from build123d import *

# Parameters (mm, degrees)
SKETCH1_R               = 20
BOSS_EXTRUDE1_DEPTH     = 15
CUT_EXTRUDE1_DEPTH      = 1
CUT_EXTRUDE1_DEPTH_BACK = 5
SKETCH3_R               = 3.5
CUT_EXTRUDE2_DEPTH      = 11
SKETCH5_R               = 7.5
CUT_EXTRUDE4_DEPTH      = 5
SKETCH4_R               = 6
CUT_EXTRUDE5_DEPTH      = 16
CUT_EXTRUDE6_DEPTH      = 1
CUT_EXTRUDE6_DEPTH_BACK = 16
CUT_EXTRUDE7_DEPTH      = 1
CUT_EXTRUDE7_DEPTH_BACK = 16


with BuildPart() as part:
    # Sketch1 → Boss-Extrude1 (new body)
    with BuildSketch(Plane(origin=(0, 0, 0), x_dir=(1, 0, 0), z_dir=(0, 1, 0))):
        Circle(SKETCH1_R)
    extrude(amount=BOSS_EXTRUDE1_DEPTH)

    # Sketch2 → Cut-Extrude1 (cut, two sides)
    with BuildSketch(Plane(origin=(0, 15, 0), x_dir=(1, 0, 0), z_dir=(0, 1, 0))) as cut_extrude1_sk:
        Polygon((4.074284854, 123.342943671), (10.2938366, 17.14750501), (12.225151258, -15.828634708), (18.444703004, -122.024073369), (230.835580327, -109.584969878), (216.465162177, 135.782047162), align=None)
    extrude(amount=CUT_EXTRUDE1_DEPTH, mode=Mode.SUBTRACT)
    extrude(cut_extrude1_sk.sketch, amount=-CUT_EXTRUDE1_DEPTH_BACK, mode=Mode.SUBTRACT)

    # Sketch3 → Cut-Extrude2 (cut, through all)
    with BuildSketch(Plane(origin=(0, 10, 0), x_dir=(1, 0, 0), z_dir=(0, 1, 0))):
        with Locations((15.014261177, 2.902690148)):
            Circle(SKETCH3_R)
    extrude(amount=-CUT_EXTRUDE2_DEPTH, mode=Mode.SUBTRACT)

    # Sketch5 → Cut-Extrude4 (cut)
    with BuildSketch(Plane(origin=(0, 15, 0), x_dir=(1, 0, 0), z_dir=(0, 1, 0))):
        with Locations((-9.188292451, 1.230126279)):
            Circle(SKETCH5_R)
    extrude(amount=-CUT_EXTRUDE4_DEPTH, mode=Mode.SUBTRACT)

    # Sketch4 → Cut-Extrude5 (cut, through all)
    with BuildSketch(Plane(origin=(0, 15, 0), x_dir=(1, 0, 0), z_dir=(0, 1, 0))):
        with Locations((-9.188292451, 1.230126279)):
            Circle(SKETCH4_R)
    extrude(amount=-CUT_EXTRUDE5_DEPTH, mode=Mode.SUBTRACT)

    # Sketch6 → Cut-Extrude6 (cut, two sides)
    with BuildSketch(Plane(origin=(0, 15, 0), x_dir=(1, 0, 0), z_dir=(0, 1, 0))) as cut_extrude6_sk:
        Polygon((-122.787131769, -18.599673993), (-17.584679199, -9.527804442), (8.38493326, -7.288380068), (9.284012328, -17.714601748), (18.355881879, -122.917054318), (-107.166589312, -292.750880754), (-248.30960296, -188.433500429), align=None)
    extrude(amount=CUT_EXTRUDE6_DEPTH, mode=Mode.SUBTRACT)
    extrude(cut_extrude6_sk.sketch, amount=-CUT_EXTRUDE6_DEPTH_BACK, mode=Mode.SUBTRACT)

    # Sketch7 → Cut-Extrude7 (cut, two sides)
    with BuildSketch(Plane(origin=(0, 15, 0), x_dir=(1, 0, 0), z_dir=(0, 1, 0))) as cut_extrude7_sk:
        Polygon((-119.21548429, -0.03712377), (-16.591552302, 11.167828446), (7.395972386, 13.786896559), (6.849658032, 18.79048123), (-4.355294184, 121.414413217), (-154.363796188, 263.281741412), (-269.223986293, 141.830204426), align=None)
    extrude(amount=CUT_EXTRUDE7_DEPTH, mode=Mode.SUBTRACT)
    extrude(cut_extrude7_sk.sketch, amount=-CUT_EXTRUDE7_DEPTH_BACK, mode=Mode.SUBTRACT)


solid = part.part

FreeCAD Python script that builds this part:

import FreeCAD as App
import Part
import Sketcher

V = App.Vector
Q = App.Units.Quantity


def add_polygon(sketch, points):
    """Adds a closed chain of lines whose ends are joined by coincident constraints."""
    first, n = sketch.GeometryCount, len(points)
    for a, b in zip(points, points[1:] + points[:1]):
        sketch.addGeometry(Part.LineSegment(App.Vector(*a, 0), App.Vector(*b, 0)), False)
    for i in range(n):
        sketch.addConstraint(Sketcher.Constraint("Coincident", first + i, 2, first + (i + 1) % n, 1))

doc = App.newDocument("Part")
body = doc.addObject("PartDesign::Body", "Body")

sketch1 = body.newObject("Sketcher::SketchObject", "Sketch")
sketch1.AttachmentSupport = (doc.getObject("XZ_Plane"), [""])
sketch1.MapMode = "FlatFace"
sketch1.addGeometry(Part.Circle(V(0, 0, 0), V(0, 0, 1), 20), False)
sketch1.addConstraint([
    Sketcher.Constraint("Coincident", 0, 3, -1, 1),
    Sketcher.Constraint("Diameter", 0, Q("40 mm")),
])
pad1 = body.newObject("PartDesign::Pad", "Pad")
pad1.Profile = sketch1
pad1.Length = 15
pad1.Reversed = True

sketch2 = body.newObject("Sketcher::SketchObject", "Sketch001")
sketch2.AttachmentSupport = (doc.getObject("XZ_Plane"), [""])
sketch2.MapMode = "FlatFace"
sketch2.AttachmentOffset = App.Placement(V(0, 0, -15), App.Rotation())
add_polygon(sketch2, [(4, -123), (10, -17), (12, 16), (18, 122), (231, 110), (216, -136)])
sketch2.addConstraint([
    Sketcher.Constraint("Parallel", 0, 1),
    Sketcher.Constraint("Parallel", 1, 2),
    Sketcher.Constraint("Perpendicular", 2, 3),
    Sketcher.Constraint("Perpendicular", 3, 4),
    Sketcher.Constraint("Perpendicular", 4, 5),
    Sketcher.Constraint("Equal", 0, 2),
    Sketcher.Constraint("DistanceX", -1, 1, 1, 2, Q("12.225151 mm")),
    Sketcher.Constraint("DistanceX", -1, 1, 3, 2, Q("230.83558 mm")),
    Sketcher.Constraint("DistanceY", -1, 1, 3, 2, Q("109.58497 mm")),
    Sketcher.Constraint("DistanceY", 0, 2, 1, 2, Q("32.97614 mm")),
    Sketcher.Constraint("DistanceX", 1, 2, 2, 2, Q("6.219552 mm")),
    Sketcher.Constraint("DistanceY", 1, 2, 2, 2, Q("106.195439 mm")),
])
pocket1 = body.newObject("PartDesign::Pocket", "Pocket")
pocket1.Profile = sketch2
pocket1.Type = "TwoLengths"
pocket1.Length = 1
pocket1.Length2 = 5

sketch3 = body.newObject("Sketcher::SketchObject", "Sketch002")
sketch3.AttachmentSupport = (doc.getObject("XZ_Plane"), [""])
sketch3.MapMode = "FlatFace"
sketch3.AttachmentOffset = App.Placement(V(0, 0, -10), App.Rotation())
sketch3.addGeometry(Part.Circle(V(15, -2.9, 0), V(0, 0, 1), 3.5), False)
sketch3.addConstraint([
    Sketcher.Constraint("Diameter", 0, Q("7 mm")),
    Sketcher.Constraint("DistanceX", -1, 1, 0, 3, Q("15.014261 mm")),
    Sketcher.Constraint("DistanceY", 0, 3, -1, 1, Q("2.90269 mm")),
])
pocket2 = body.newObject("PartDesign::Pocket", "Pocket001")
pocket2.Profile = sketch3
pocket2.Type = "ThroughAll"
pocket2.Reversed = True

sketch4 = body.newObject("Sketcher::SketchObject", "Sketch003")
sketch4.AttachmentSupport = (doc.getObject("XZ_Plane"), [""])
sketch4.MapMode = "FlatFace"
sketch4.AttachmentOffset = App.Placement(V(0, 0, -15), App.Rotation())
sketch4.addGeometry(Part.Circle(V(-9, -1, 0), V(0, 0, 1), 8), False)
sketch4.addConstraint([
    Sketcher.Constraint("Diameter", 0, Q("15 mm")),
    Sketcher.Constraint("DistanceX", 0, 3, -1, 1, Q("9.188292 mm")),
    Sketcher.Constraint("DistanceY", 0, 3, -1, 1, Q("1.230126 mm")),
])
pocket3 = body.newObject("PartDesign::Pocket", "Pocket002")
pocket3.Profile = sketch4
pocket3.Length = 5
pocket3.Reversed = True

sketch5 = body.newObject("Sketcher::SketchObject", "Sketch004")
sketch5.AttachmentSupport = (doc.getObject("XZ_Plane"), [""])
sketch5.MapMode = "FlatFace"
sketch5.AttachmentOffset = App.Placement(V(0, 0, -15), App.Rotation())
sketch5.addGeometry(Part.Circle(V(-9, -1, 0), V(0, 0, 1), 6), False)
sketch5.addConstraint([
    Sketcher.Constraint("Diameter", 0, Q("12 mm")),
    Sketcher.Constraint("DistanceX", 0, 3, -1, 1, Q("9.188292 mm")),
    Sketcher.Constraint("DistanceY", 0, 3, -1, 1, Q("1.230126 mm")),
])
pocket4 = body.newObject("PartDesign::Pocket", "Pocket003")
pocket4.Profile = sketch5
pocket4.Type = "ThroughAll"
pocket4.Reversed = True

sketch6 = body.newObject("Sketcher::SketchObject", "Sketch005")
sketch6.AttachmentSupport = (doc.getObject("XZ_Plane"), [""])
sketch6.MapMode = "FlatFace"
sketch6.AttachmentOffset = App.Placement(V(0, 0, -15), App.Rotation())
add_polygon(sketch6, [(-18, 10), (-123, 19), (-248, 188), (-107, 293), (18, 123), (9, 18), (8, 7)])
sketch6.addConstraint([
    Sketcher.Constraint("Perpendicular", 1, 2),
    Sketcher.Constraint("Perpendicular", 2, 3),
    Sketcher.Constraint("Perpendicular", 0, 4),
    Sketcher.Constraint("Parallel", 4, 5),
    Sketcher.Constraint("Perpendicular", 5, 6),
    Sketcher.Constraint("Equal", 1, 3),
    Sketcher.Constraint("Equal", 0, 4),
    Sketcher.Constraint("DistanceY", -1, 1, 1, 2, Q("188.4335 mm")),
    Sketcher.Constraint("DistanceY", -1, 1, 4, 2, Q("17.714602 mm")),
    Sketcher.Constraint("DistanceX", 2, 2, 4, 2, Q("116.450602 mm")),
    Sketcher.Constraint("DistanceY", 5, 2, 2, 2, Q("285.462501 mm")),
    Sketcher.Constraint("Distance", 6, Q("26.065989 mm")),
    Sketcher.Constraint("DistanceX", 0, 2, -1, 1, Q("122.787132 mm")),
    Sketcher.Constraint("DistanceX", 2, 2, -1, 1, Q("107.166589 mm")),
])
pocket5 = body.newObject("PartDesign::Pocket", "Pocket004")
pocket5.Profile = sketch6
pocket5.Type = "ThroughAll"
pocket5.Midplane = True

sketch7 = body.newObject("Sketcher::SketchObject", "Sketch006")
sketch7.AttachmentSupport = (doc.getObject("XZ_Plane"), [""])
sketch7.MapMode = "FlatFace"
sketch7.AttachmentOffset = App.Placement(V(0, 0, -15), App.Rotation())
add_polygon(sketch7, [(-119, 0), (-17, -11), (7, -14), (7, -19), (-4, -121), (-154, -263), (-269, -142)])
sketch7.addConstraint([
    Sketcher.Constraint("Parallel", 0, 1),
    Sketcher.Constraint("Perpendicular", 1, 2),
    Sketcher.Constraint("Parallel", 2, 3),
    Sketcher.Constraint("Perpendicular", 4, 5),
    Sketcher.Constraint("Perpendicular", 5, 6),
    Sketcher.Constraint("Equal", 0, 3),
    Sketcher.Constraint("Equal", 4, 6),
    Sketcher.Constraint("Distance", 2, Q("5.033321 mm")),
    Sketcher.Constraint("DistanceY", 0, 2, -1, 1, Q("11.167828 mm")),
    Sketcher.Constraint("DistanceX", -1, 1, 2, 2, Q("6.849658 mm")),
    Sketcher.Constraint("DistanceY", 2, 2, -1, 1, Q("18.790481 mm")),
    Sketcher.Constraint("DistanceY", 4, 2, -1, 1, Q("263.281741 mm")),
    Sketcher.Constraint("DistanceX", 0, 2, 2, 2, Q("23.44121 mm")),
    Sketcher.Constraint("DistanceY", 3, 2, 2, 2, Q("102.623932 mm")),
])
pocket6 = body.newObject("PartDesign::Pocket", "Pocket005")
pocket6.Profile = sketch7
pocket6.Type = "ThroughAll"
pocket6.Midplane = True

doc.recompute()
